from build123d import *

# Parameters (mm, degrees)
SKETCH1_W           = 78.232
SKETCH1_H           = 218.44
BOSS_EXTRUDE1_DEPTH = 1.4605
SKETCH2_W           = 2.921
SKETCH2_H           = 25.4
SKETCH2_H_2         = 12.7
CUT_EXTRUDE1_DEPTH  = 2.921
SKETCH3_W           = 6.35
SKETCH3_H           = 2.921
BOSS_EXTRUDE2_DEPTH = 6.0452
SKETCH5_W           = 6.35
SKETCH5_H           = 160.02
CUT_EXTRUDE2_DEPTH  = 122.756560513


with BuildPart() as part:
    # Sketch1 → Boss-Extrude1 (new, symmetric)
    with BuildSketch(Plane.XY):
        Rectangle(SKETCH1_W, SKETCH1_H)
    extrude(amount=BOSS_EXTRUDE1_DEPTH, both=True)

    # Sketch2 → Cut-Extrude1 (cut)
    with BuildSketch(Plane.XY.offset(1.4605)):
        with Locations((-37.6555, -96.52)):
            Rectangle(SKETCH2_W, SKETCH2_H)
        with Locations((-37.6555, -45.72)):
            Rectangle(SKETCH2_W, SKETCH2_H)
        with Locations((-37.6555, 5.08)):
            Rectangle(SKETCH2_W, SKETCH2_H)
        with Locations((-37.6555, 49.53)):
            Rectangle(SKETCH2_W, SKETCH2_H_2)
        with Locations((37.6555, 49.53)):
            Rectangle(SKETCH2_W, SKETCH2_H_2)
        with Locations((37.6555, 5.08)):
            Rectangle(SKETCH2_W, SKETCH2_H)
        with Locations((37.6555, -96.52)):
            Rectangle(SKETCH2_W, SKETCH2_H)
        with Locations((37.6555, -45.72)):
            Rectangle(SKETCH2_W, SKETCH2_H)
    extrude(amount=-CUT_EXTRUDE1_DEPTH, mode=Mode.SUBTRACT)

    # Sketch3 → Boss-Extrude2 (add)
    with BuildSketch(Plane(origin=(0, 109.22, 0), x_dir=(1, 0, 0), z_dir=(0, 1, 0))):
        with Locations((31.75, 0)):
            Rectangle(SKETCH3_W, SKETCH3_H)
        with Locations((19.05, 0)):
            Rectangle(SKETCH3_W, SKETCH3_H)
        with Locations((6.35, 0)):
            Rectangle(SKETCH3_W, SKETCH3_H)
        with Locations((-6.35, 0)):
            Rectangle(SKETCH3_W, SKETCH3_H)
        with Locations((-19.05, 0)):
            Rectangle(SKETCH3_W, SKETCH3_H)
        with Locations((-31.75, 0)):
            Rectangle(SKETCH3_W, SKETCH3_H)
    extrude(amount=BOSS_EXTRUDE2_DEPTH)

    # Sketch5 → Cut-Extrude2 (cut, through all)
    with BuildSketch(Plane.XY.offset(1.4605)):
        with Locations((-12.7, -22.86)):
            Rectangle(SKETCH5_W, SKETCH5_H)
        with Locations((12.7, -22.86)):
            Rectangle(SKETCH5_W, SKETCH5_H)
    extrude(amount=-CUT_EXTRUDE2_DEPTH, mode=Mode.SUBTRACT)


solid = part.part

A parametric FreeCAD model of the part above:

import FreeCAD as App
import Part
import Sketcher
Q = App.Units.Quantity


def add_polygon(sketch, points):
    """Adds a closed chain of lines whose ends are joined by coincident constraints."""
    first, n = sketch.GeometryCount, len(points)
    for a, b in zip(points, points[1:] + points[:1]):
        sketch.addGeometry(Part.LineSegment(App.Vector(*a, 0), App.Vector(*b, 0)), False)
    for i in range(n):
        sketch.addConstraint(Sketcher.Constraint("Coincident", first + i, 2, first + (i + 1) % n, 1))

doc = App.newDocument("Part")
params = doc.addObject("Spreadsheet::Sheet", "Params")
for row, (alias, value) in enumerate([
    ("sketch1_height", "8.6 in"),
    ("sketch1_width", "3.08 in"),
    ("pad1_length", "0.115 in"),
    ("sketch2_height", "1 in"),
    ("sketch2_height2", "0.5 in"),
    ("sketch2_width", "0.115 in"),
    ("pocket1_length", "0.115 in"),
    ("sketch3_width", "0.25 in"),
    ("sketch3_height", "0.115 in"),
    ("pad2_length", "0.238 in"),
    ("sketch4_height", "6.3 in"),
    ("sketch4_width", "0.25 in"),
], start=1):
    params.set(f"A{row}", alias)
    params.set(f"B{row}", "=" + value)
    params.setAlias(f"B{row}", alias)

body = doc.addObject("PartDesign::Body", "Body")

sketch1 = doc.addObject("Sketcher::SketchObject", "Sketch")
body.addObject(sketch1)
sketch1.AttachmentSupport = (doc.XY_Plane, [""])
sketch1.MapMode = "FlatFace"
add_polygon(sketch1, [(-39.116, 109.22), (-39.116, -109.22), (39.116, -109.22), (39.116, 109.22)])
sketch1.addConstraint(Sketcher.Constraint("Vertical", 0))
sketch1.addConstraint(Sketcher.Constraint("Horizontal", 1))
sketch1.addConstraint(Sketcher.Constraint("Vertical", 2))
sketch1.addConstraint(Sketcher.Constraint("Horizontal", 3))
sketch1.addConstraint(Sketcher.Constraint("Symmetric", 0, 2, 2, 2, -1, 1))
sketch1.addConstraint(Sketcher.Constraint("DistanceY", 0, 2, 0, 1, Q("8.6 in")))
sketch1.addConstraint(Sketcher.Constraint("DistanceX", 1, 1, 1, 2, Q("3.08 in")))
sketch1.setExpression("Constraints[9]", "Params.sketch1_height")
sketch1.setExpression("Constraints[10]", "Params.sketch1_width")
pad1 = doc.addObject("PartDesign::Pad", "Pad")
body.addObject(pad1)
pad1.Profile = sketch1
pad1.setExpression("Length", "Params.pad1_length")
pad1.Midplane = True

sketch2 = doc.addObject("Sketcher::SketchObject", "Sketch001")
body.addObject(sketch2)
sketch2.AttachmentSupport = (doc.XY_Plane, [""])
sketch2.MapMode = "FlatFace"
sketch2.AttachmentOffset = App.Placement(App.Vector(0, 0, 0.0575 * 25.4), App.Rotation())
add_polygon(sketch2, [(-39.116, -83.82), (-39.116, -109.22), (-36.195, -109.22), (-36.195, -83.82)])
add_polygon(sketch2, [(-39.116, -33.02), (-39.116, -58.42), (-36.195, -58.42), (-36.195, -33.02)])
add_polygon(sketch2, [(-39.116, 17.78), (-39.116, -7.62), (-36.195, -7.62), (-36.195, 17.78)])
add_polygon(sketch2, [(-39.116, 55.88), (-39.116, 43.18), (-36.195, 43.18), (-36.195, 55.88)])
add_polygon(sketch2, [(36.195, 55.88), (36.195, 43.18), (39.116, 43.18), (39.116, 55.88)])
add_polygon(sketch2, [(36.195, 17.78), (36.195, -7.62), (39.116, -7.62), (39.116, 17.78)])
add_polygon(sketch2, [(36.195, -83.82), (36.195, -109.22), (39.116, -109.22), (39.116, -83.82)])
add_polygon(sketch2, [(36.195, -33.02), (36.195, -58.42), (39.116, -58.42), (39.116, -33.02)])
sketch2.addConstraint(Sketcher.Constraint("Vertical", 0))
sketch2.addConstraint(Sketcher.Constraint("Horizontal", 1))
sketch2.addConstraint(Sketcher.Constraint("Vertical", 2))
sketch2.addConstraint(Sketcher.Constraint("Horizontal", 3))
sketch2.addConstraint(Sketcher.Constraint("Vertical", 4))
sketch2.addConstraint(Sketcher.Constraint("Horizontal", 5))
sketch2.addConstraint(Sketcher.Constraint("Vertical", 6))
sketch2.addConstraint(Sketcher.Constraint("Horizontal", 7))
sketch2.addConstraint(Sketcher.Constraint("Vertical", 8))
sketch2.addConstraint(Sketcher.Constraint("Horizontal", 9))
sketch2.addConstraint(Sketcher.Constraint("Vertical", 10))
sketch2.addConstraint(Sketcher.Constraint("Horizontal", 11))
sketch2.addConstraint(Sketcher.Constraint("Vertical", 12))
sketch2.addConstraint(Sketcher.Constraint("Horizontal", 13))
sketch2.addConstraint(Sketcher.Constraint("Vertical", 14))
sketch2.addConstraint(Sketcher.Constraint("Horizontal", 15))
sketch2.addConstraint(Sketcher.Constraint("Vertical", 16))
sketch2.addConstraint(Sketcher.Constraint("Horizontal", 17))
sketch2.addConstraint(Sketcher.Constraint("Vertical", 18))
sketch2.addConstraint(Sketcher.Constraint("Horizontal", 19))
sketch2.addConstraint(Sketcher.Constraint("Vertical", 20))
sketch2.addConstraint(Sketcher.Constraint("Horizontal", 21))
sketch2.addConstraint(Sketcher.Constraint("Vertical", 22))
sketch2.addConstraint(Sketcher.Constraint("Horizontal", 23))
sketch2.addConstraint(Sketcher.Constraint("Vertical", 24))
sketch2.addConstraint(Sketcher.Constraint("Horizontal", 25))
sketch2.addConstraint(Sketcher.Constraint("Vertical", 26))
sketch2.addConstraint(Sketcher.Constraint("Horizontal", 27))
sketch2.addConstraint(Sketcher.Constraint("Vertical", 28))
sketch2.addConstraint(Sketcher.Constraint("Horizontal", 29))
sketch2.addConstraint(Sketcher.Constraint("Vertical", 30))
sketch2.addConstraint(Sketcher.Constraint("Horizontal", 31))
sketch2.addConstraint(Sketcher.Constraint("Symmetric", 13, 2, 16, 2, -2))
sketch2.addConstraint(Sketcher.Constraint("Symmetric", 15, 2, 18, 2, -2))
sketch2.addConstraint(Sketcher.Constraint("Symmetric", 9, 2, 20, 2, -2))
sketch2.addConstraint(Sketcher.Constraint("Symmetric", 11, 2, 22, 2, -2))
sketch2.addConstraint(Sketcher.Constraint("Symmetric", 1, 2, 24, 2, -2))
sketch2.addConstraint(Sketcher.Constraint("Symmetric", 3, 2, 26, 2, -2))
sketch2.addConstraint(Sketcher.Constraint("Symmetric", 5, 2, 28, 2, -2))
sketch2.addConstraint(Sketcher.Constraint("Symmetric", 7, 2, 30, 2, -2))
sketch2.addConstraint(Sketcher.Constraint("Vertical", 3, 2, 4, 2))
sketch2.addConstraint(Sketcher.Constraint("Vertical", 2, 2, 5, 2))
sketch2.addConstraint(Sketcher.Constraint("Vertical", 7, 2, 8, 2))
sketch2.addConstraint(Sketcher.Constraint("Vertical", 6, 2, 9, 2))
sketch2.addConstraint(Sketcher.Constraint("Vertical", 11, 2, 12, 2))
sketch2.addConstraint(Sketcher.Constraint("Vertical", 10, 2, 13, 2))
sketch2.addConstraint(Sketcher.Constraint("Equal", 2, 4))
sketch2.addConstraint(Sketcher.Constraint("Equal", 6, 8))
sketch2.addConstraint(Sketcher.Constraint("DistanceY", 0, 2, 0, 1, Q("1 in")))
sketch2.addConstraint(Sketcher.Constraint("DistanceY", 12, 2, 12, 1, Q("0.5 in")))
sketch2.addConstraint(Sketcher.Constraint("DistanceY", 3, 2, 4, 2, Q("1 in")))
sketch2.addConstraint(Sketcher.Constraint("DistanceY", 7, 2, 8, 2, Q("1 in")))
sketch2.addConstraint(Sketcher.Constraint("DistanceY", 11, 2, 12, 2, Q("1 in")))
sketch2.addConstraint(Sketcher.Constraint("DistanceY", 0, 2, -1, 1, Q("4.3 in")))
sketch2.addConstraint(Sketcher.Constraint("DistanceX", 1, 1, 1, 2, Q("0.115 in")))
sketch2.addConstraint(Sketcher.Constraint("DistanceX", 0, 2, -1, 1, Q("1.54 in")))
sketch2.setExpression("Constraints[80]", "Params.sketch2_height")
sketch2.setExpression("Constraints[81]", "Params.sketch2_height2")
sketch2.setExpression("Constraints[86]", "Params.sketch2_width")
pocket1 = doc.addObject("PartDesign::Pocket", "Pocket")
body.addObject(pocket1)
pocket1.Profile = sketch2
pocket1.setExpression("Length", "Params.pocket1_length")

sketch3 = doc.addObject("Sketcher::SketchObject", "Sketch002")
body.addObject(sketch3)
sketch3.AttachmentSupport = (doc.XZ_Plane, [""])
sketch3.MapMode = "FlatFace"
sketch3.AttachmentOffset = App.Placement(App.Vector(0, 0, -4.3 * 25.4), App.Rotation())
add_polygon(sketch3, [(28.575, -1.4605), (28.575, 1.4605), (34.925, 1.4605), (34.925, -1.4605)])
add_polygon(sketch3, [(15.875, -1.4605), (15.875, 1.4605), (22.225, 1.4605), (22.225, -1.4605)])
add_polygon(sketch3, [(3.175, -1.4605), (3.175, 1.4605), (9.525, 1.4605), (9.525, -1.4605)])
add_polygon(sketch3, [(-9.525, -1.4605), (-9.525, 1.4605), (-3.175, 1.4605), (-3.175, -1.4605)])
add_polygon(sketch3, [(-22.225, -1.4605), (-22.225, 1.4605), (-15.875, 1.4605), (-15.875, -1.4605)])
add_polygon(sketch3, [(-34.925, -1.4605), (-34.925, 1.4605), (-28.575, 1.4605), (-28.575, -1.4605)])
sketch3.addConstraint(Sketcher.Constraint("Vertical", 0))
sketch3.addConstraint(Sketcher.Constraint("Horizontal", 1))
sketch3.addConstraint(Sketcher.Constraint("Vertical", 2))
sketch3.addConstraint(Sketcher.Constraint("Horizontal", 3))
sketch3.addConstraint(Sketcher.Constraint("Vertical", 4))
sketch3.addConstraint(Sketcher.Constraint("Horizontal", 5))
sketch3.addConstraint(Sketcher.Constraint("Vertical", 6))
sketch3.addConstraint(Sketcher.Constraint("Horizontal", 7))
sketch3.addConstraint(Sketcher.Constraint("Vertical", 8))
sketch3.addConstraint(Sketcher.Constraint("Horizontal", 9))
sketch3.addConstraint(Sketcher.Constraint("Vertical", 10))
sketch3.addConstraint(Sketcher.Constraint("Horizontal", 11))
sketch3.addConstraint(Sketcher.Constraint("Vertical", 12))
sketch3.addConstraint(Sketcher.Constraint("Horizontal", 13))
sketch3.addConstraint(Sketcher.Constraint("Vertical", 14))
sketch3.addConstraint(Sketcher.Constraint("Horizontal", 15))
sketch3.addConstraint(Sketcher.Constraint("Vertical", 16))
sketch3.addConstraint(Sketcher.Constraint("Horizontal", 17))
sketch3.addConstraint(Sketcher.Constraint("Vertical", 18))
sketch3.addConstraint(Sketcher.Constraint("Horizontal", 19))
sketch3.addConstraint(Sketcher.Constraint("Vertical", 20))
sketch3.addConstraint(Sketcher.Constraint("Horizontal", 21))
sketch3.addConstraint(Sketcher.Constraint("Vertical", 22))
sketch3.addConstraint(Sketcher.Constraint("Horizontal", 23))
sketch3.addConstraint(Sketcher.Constraint("Symmetric", 10, 2, 12, 2, -1, 1))
sketch3.addConstraint(Sketcher.Constraint("Symmetric", 8, 2, 14, 2, -1, 1))
sketch3.addConstraint(Sketcher.Constraint("Symmetric", 6, 2, 16, 2, -1, 1))
sketch3.addConstraint(Sketcher.Constraint("Symmetric", 4, 2, 18, 2, -1, 1))
sketch3.addConstraint(Sketcher.Constraint("Symmetric", 2, 2, 20, 2, -1, 1))
sketch3.addConstraint(Sketcher.Constraint("Symmetric", 0, 2, 22, 2, -1, 1))
sketch3.addConstraint(Sketcher.Constraint("Horizontal", 1, 2, 4, 2))
sketch3.addConstraint(Sketcher.Constraint("Horizontal", 3, 2, 6, 2))
sketch3.addConstraint(Sketcher.Constraint("Horizontal", 5, 2, 8, 2))
sketch3.addConstraint(Sketcher.Constraint("Horizontal", 7, 2, 10, 2))
sketch3.addConstraint(Sketcher.Constraint("Horizontal", 9, 2, 12, 2))
sketch3.addConstraint(Sketcher.Constraint("Equal", 3, 5))
sketch3.addConstraint(Sketcher.Constraint("Equal", 7, 9))
sketch3.addConstraint(Sketcher.Constraint("DistanceX", 8, 2, 0, 2, Q("1 in")))
sketch3.addConstraint(Sketcher.Constraint("DistanceX", 12, 2, 4, 2, Q("1 in")))
sketch3.addConstraint(Sketcher.Constraint("DistanceX", 1, 1, 1, 2, Q("0.25 in")))
sketch3.addConstraint(Sketcher.Constraint("DistanceX", 4, 2, 0, 2, Q("0.5 in")))
sketch3.addConstraint(Sketcher.Constraint("DistanceY", 0, 1, 0, 2, Q("0.115 in")))
sketch3.setExpression("Constraints[63]", "Params.sketch3_width")
sketch3.setExpression("Constraints[65]", "Params.sketch3_height")
pad2 = doc.addObject("PartDesign::Pad", "Pad001")
body.addObject(pad2)
pad2.Profile = sketch3
pad2.setExpression("Length", "Params.pad2_length")
pad2.Reversed = True

sketch4 = doc.addObject("Sketcher::SketchObject", "Sketch003")
body.addObject(sketch4)
sketch4.AttachmentSupport = (doc.XY_Plane, [""])
sketch4.MapMode = "FlatFace"
sketch4.AttachmentOffset = App.Placement(App.Vector(0, 0, 0.0575 * 25.4), App.Rotation())
add_polygon(sketch4, [(-15.875, 57.15), (-15.875, -102.87), (-9.525, -102.87), (-9.525, 57.15)])
add_polygon(sketch4, [(9.525, 57.15), (9.525, -102.87), (15.875, -102.87), (15.875, 57.15)])
sketch4.addConstraint(Sketcher.Constraint("Vertical", 0))
sketch4.addConstraint(Sketcher.Constraint("Horizontal", 1))
sketch4.addConstraint(Sketcher.Constraint("Vertical", 2))
sketch4.addConstraint(Sketcher.Constraint("Horizontal", 3))
sketch4.addConstraint(Sketcher.Constraint("Vertical", 4))
sketch4.addConstraint(Sketcher.Constraint("Horizontal", 5))
sketch4.addConstraint(Sketcher.Constraint("Vertical", 6))
sketch4.addConstraint(Sketcher.Constraint("Horizontal", 7))
sketch4.addConstraint(Sketcher.Constraint("Symmetric", 1, 2, 4, 2, -2))
sketch4.addConstraint(Sketcher.Constraint("Symmetric", 3, 2, 6, 2, -2))
sketch4.addConstraint(Sketcher.Constraint("DistanceY", 0, 2, 0, 1, Q("6.3 in")))
sketch4.addConstraint(Sketcher.Constraint("DistanceX", 0, 2, 4, 2, Q("1 in")))
sketch4.addConstraint(Sketcher.Constraint("DistanceX", 1, 1, 1, 2, Q("0.25 in")))
sketch4.addConstraint(Sketcher.Constraint("DistanceY", 0, 2, -1, 1, Q("4.05 in")))
sketch4.setExpression("Constraints[18]", "Params.sketch4_height")
sketch4.setExpression("Constraints[20]", "Params.sketch4_width")
pocket2 = doc.addObject("PartDesign::Pocket", "Pocket001")
body.addObject(pocket2)
pocket2.Profile = sketch4
pocket2.Type = "ThroughAll"

doc.recompute()
